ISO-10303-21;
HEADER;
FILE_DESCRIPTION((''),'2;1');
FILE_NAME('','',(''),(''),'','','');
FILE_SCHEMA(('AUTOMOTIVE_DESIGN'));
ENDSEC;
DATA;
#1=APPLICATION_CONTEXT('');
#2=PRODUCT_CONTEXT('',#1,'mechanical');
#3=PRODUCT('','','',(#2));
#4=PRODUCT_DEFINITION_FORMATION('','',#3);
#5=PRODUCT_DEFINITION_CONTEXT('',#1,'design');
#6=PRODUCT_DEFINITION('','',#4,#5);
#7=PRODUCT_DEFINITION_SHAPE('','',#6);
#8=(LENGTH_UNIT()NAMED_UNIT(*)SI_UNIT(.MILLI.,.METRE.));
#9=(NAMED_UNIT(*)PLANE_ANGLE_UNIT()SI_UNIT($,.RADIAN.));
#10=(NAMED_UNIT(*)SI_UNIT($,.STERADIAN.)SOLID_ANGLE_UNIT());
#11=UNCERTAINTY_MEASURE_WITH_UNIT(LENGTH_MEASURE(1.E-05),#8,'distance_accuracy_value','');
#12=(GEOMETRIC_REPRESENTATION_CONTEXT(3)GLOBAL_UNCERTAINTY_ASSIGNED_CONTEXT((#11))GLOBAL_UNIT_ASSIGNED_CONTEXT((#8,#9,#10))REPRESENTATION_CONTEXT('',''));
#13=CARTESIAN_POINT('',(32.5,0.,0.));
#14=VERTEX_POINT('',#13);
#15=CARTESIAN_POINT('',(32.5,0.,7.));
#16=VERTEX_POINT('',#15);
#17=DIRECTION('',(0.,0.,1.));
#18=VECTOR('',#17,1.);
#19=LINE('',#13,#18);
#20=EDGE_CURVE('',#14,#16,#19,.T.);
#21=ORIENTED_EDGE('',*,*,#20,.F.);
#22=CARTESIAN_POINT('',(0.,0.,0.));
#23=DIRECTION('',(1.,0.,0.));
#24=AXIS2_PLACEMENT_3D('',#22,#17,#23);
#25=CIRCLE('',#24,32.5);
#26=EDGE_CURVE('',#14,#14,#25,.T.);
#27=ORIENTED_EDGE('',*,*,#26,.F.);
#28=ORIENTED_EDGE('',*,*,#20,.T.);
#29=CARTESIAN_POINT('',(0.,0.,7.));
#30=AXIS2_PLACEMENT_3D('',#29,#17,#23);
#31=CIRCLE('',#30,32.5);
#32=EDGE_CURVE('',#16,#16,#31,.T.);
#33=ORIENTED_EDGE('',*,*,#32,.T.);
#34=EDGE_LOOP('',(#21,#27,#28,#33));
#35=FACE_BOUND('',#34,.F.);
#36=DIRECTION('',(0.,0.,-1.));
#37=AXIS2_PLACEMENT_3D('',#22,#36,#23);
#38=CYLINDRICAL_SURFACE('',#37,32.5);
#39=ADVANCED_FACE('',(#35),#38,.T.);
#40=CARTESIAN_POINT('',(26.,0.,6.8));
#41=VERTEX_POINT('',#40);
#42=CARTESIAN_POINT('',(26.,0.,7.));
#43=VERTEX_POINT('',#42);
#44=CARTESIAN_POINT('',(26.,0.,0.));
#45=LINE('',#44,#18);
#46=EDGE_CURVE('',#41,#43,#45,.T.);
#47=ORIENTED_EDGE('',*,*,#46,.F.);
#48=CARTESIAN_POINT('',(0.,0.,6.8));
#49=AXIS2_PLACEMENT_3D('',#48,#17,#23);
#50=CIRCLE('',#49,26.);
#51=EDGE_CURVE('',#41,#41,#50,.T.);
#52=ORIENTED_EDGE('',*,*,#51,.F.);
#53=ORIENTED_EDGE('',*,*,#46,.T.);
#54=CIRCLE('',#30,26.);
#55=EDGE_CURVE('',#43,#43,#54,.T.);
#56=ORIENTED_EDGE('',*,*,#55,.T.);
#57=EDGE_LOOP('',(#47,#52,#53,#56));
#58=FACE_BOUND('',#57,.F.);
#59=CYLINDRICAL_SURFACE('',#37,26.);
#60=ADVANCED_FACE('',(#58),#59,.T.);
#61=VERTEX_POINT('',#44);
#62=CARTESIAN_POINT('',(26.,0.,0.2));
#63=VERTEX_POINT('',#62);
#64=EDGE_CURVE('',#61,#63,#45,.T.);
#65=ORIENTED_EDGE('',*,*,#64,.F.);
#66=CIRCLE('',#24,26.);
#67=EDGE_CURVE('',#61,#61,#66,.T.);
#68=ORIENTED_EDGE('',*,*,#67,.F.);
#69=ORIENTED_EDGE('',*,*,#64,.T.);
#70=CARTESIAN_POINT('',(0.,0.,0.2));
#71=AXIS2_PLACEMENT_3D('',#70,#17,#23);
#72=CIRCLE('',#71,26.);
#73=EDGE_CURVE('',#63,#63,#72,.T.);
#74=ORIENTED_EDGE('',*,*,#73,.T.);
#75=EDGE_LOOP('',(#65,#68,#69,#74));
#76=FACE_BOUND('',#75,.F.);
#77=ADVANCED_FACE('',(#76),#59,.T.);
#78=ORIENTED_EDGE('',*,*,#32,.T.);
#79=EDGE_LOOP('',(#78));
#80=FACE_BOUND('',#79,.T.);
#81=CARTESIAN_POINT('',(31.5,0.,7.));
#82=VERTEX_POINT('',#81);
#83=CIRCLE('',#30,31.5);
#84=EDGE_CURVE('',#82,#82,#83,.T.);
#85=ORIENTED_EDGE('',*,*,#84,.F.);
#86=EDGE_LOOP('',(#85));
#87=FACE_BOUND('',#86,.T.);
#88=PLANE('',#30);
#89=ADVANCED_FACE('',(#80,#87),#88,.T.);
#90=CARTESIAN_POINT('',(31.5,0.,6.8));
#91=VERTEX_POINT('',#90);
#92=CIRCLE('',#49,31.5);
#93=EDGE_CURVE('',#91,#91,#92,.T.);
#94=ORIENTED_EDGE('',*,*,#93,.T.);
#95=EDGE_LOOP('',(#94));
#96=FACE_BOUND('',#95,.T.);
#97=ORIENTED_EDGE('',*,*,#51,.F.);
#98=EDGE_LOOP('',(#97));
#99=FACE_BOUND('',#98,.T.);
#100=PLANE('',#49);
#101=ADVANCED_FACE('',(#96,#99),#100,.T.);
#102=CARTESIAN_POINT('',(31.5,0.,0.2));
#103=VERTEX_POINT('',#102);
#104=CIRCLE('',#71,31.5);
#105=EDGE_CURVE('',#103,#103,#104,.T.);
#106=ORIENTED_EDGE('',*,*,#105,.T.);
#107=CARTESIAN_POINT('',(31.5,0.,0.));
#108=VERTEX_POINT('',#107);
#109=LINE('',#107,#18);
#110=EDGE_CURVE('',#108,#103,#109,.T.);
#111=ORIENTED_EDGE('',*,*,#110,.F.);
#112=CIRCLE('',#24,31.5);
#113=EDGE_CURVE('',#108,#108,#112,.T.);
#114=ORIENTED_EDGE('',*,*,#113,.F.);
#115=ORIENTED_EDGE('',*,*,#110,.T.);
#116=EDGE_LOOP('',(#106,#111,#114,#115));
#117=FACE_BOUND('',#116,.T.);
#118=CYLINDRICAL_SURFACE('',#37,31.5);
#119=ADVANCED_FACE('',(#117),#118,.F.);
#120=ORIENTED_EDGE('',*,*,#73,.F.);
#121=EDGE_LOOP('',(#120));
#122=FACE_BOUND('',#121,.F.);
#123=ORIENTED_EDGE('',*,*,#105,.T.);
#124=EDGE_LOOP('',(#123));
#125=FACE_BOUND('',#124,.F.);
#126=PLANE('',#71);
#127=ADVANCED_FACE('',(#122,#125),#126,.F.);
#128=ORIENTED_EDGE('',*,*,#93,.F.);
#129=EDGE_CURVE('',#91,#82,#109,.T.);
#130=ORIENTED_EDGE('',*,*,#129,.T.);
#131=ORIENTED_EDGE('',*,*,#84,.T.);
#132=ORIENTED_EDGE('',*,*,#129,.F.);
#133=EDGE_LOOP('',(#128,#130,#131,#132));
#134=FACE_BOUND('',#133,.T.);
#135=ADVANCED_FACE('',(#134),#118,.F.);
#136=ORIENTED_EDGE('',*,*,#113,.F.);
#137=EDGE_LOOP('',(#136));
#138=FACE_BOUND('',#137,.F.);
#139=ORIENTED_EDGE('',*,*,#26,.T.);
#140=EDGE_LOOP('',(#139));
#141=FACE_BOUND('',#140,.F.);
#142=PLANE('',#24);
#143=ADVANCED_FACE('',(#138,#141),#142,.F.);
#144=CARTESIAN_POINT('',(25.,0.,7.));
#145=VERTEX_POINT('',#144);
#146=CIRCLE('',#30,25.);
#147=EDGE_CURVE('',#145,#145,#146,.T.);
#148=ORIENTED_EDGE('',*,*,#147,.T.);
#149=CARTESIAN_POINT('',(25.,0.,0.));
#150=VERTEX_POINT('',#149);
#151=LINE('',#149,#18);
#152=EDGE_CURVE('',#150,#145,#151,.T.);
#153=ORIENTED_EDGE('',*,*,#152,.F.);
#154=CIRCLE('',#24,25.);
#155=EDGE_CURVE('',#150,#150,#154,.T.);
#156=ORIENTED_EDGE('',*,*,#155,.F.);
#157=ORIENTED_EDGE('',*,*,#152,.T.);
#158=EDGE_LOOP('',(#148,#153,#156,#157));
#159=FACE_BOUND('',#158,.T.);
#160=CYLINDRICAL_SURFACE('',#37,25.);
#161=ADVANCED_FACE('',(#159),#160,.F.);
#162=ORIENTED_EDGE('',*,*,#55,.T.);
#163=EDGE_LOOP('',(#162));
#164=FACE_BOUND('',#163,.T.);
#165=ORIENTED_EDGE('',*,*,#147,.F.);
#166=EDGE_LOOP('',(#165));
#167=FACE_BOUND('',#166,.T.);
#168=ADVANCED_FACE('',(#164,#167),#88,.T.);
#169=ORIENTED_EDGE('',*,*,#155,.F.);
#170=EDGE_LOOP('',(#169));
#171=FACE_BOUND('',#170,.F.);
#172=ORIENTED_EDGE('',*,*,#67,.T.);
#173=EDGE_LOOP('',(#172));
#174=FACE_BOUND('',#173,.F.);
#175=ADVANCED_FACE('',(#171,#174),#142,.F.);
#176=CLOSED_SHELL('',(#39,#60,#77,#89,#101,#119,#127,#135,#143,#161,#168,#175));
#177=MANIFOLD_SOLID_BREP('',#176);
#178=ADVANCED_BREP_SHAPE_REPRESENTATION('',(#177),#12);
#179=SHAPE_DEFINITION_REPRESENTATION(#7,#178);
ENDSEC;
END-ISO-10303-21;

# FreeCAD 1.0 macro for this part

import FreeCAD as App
import Part
import Sketcher
from FreeCAD import Vector
Q = App.Units.Quantity

doc = App.newDocument("Part")
params = doc.addObject("Spreadsheet::Sheet", "Params")
for row, (alias, value) in enumerate([
    ("sketch1_diameter", "65 mm"),
    ("sketch1_diameter2", "50 mm"),
    ("sketch1_diameter3", "63 mm"),
    ("sketch1_diameter4", "52 mm"),
    ("pad1_length", "7 mm"),
    ("sketch2_diameter", "63 mm"),
    ("sketch2_diameter2", "52 mm"),
    ("pad2_length", "6.6 mm"),
], start=1):
    params.set(f"A{row}", alias)
    params.set(f"B{row}", "=" + value)
    params.setAlias(f"B{row}", alias)

body = doc.addObject("PartDesign::Body", "Body")
body.AllowCompound = True

sketch1 = body.newObject("Sketcher::SketchObject", "Sketch")
sketch1.AttachmentSupport = (doc.getObject("XY_Plane"), [""])
sketch1.MapMode = "FlatFace"
sketch1.addGeometry([
    Part.Circle(Vector(0, 0, 0), Vector(0, 0, 1), 32),
    Part.Circle(Vector(0, 0, 0), Vector(0, 0, 1), 32),
    Part.Circle(Vector(0, 0, 0), Vector(0, 0, 1), 26),
    Part.Circle(Vector(0, 0, 0), Vector(0, 0, 1), 25),
], False)
sketch1.addConstraint([
    Sketcher.Constraint("Coincident", 0, 3, -1, 1),
    Sketcher.Constraint("Coincident", 1, 3, -1, 1),
    Sketcher.Constraint("Coincident", 2, 3, -1, 1),
    Sketcher.Constraint("Coincident", 3, 3, -1, 1),
    Sketcher.Constraint("Diameter", 0, Q("65 mm")),
    Sketcher.Constraint("Diameter", 3, Q("50 mm")),
    Sketcher.Constraint("Diameter", 1, Q("63 mm")),
    Sketcher.Constraint("Diameter", 2, Q("52 mm")),
])
sketch1.setExpression("Constraints[4]", "Params.sketch1_diameter")
sketch1.setExpression("Constraints[5]", "Params.sketch1_diameter2")
sketch1.setExpression("Constraints[6]", "Params.sketch1_diameter3")
sketch1.setExpression("Constraints[7]", "Params.sketch1_diameter4")
pad1 = body.newObject("PartDesign::Pad", "Pad")
pad1.Profile = sketch1
pad1.setExpression("Length", "Params.pad1_length")

sketch2 = body.newObject("Sketcher::SketchObject", "Sketch001")
sketch2.AttachmentSupport = (doc.getObject("XY_Plane"), [""])
sketch2.MapMode = "FlatFace"
sketch2.AttachmentOffset = App.Placement(Vector(0, 0, 0.2), App.Rotation())
sketch2.addGeometry([
    Part.Circle(Vector(0, 0, 0), Vector(0, 0, 1), 32),
    Part.Circle(Vector(0, 0, 0), Vector(0, 0, 1), 26),
], False)
sketch2.addConstraint([
    Sketcher.Constraint("Coincident", 0, 3, -1, 1),
    Sketcher.Constraint("Coincident", 1, 3, -1, 1),
    Sketcher.Constraint("Diameter", 0, Q("63 mm")),
    Sketcher.Constraint("Diameter", 1, Q("52 mm")),
])
sketch2.setExpression("Constraints[2]", "Params.sketch2_diameter")
sketch2.setExpression("Constraints[3]", "Params.sketch2_diameter2")
pad2 = body.newObject("PartDesign::Pad", "Pad001")
pad2.Profile = sketch2
pad2.setExpression("Length", "Params.pad2_length")

doc.recompute()
